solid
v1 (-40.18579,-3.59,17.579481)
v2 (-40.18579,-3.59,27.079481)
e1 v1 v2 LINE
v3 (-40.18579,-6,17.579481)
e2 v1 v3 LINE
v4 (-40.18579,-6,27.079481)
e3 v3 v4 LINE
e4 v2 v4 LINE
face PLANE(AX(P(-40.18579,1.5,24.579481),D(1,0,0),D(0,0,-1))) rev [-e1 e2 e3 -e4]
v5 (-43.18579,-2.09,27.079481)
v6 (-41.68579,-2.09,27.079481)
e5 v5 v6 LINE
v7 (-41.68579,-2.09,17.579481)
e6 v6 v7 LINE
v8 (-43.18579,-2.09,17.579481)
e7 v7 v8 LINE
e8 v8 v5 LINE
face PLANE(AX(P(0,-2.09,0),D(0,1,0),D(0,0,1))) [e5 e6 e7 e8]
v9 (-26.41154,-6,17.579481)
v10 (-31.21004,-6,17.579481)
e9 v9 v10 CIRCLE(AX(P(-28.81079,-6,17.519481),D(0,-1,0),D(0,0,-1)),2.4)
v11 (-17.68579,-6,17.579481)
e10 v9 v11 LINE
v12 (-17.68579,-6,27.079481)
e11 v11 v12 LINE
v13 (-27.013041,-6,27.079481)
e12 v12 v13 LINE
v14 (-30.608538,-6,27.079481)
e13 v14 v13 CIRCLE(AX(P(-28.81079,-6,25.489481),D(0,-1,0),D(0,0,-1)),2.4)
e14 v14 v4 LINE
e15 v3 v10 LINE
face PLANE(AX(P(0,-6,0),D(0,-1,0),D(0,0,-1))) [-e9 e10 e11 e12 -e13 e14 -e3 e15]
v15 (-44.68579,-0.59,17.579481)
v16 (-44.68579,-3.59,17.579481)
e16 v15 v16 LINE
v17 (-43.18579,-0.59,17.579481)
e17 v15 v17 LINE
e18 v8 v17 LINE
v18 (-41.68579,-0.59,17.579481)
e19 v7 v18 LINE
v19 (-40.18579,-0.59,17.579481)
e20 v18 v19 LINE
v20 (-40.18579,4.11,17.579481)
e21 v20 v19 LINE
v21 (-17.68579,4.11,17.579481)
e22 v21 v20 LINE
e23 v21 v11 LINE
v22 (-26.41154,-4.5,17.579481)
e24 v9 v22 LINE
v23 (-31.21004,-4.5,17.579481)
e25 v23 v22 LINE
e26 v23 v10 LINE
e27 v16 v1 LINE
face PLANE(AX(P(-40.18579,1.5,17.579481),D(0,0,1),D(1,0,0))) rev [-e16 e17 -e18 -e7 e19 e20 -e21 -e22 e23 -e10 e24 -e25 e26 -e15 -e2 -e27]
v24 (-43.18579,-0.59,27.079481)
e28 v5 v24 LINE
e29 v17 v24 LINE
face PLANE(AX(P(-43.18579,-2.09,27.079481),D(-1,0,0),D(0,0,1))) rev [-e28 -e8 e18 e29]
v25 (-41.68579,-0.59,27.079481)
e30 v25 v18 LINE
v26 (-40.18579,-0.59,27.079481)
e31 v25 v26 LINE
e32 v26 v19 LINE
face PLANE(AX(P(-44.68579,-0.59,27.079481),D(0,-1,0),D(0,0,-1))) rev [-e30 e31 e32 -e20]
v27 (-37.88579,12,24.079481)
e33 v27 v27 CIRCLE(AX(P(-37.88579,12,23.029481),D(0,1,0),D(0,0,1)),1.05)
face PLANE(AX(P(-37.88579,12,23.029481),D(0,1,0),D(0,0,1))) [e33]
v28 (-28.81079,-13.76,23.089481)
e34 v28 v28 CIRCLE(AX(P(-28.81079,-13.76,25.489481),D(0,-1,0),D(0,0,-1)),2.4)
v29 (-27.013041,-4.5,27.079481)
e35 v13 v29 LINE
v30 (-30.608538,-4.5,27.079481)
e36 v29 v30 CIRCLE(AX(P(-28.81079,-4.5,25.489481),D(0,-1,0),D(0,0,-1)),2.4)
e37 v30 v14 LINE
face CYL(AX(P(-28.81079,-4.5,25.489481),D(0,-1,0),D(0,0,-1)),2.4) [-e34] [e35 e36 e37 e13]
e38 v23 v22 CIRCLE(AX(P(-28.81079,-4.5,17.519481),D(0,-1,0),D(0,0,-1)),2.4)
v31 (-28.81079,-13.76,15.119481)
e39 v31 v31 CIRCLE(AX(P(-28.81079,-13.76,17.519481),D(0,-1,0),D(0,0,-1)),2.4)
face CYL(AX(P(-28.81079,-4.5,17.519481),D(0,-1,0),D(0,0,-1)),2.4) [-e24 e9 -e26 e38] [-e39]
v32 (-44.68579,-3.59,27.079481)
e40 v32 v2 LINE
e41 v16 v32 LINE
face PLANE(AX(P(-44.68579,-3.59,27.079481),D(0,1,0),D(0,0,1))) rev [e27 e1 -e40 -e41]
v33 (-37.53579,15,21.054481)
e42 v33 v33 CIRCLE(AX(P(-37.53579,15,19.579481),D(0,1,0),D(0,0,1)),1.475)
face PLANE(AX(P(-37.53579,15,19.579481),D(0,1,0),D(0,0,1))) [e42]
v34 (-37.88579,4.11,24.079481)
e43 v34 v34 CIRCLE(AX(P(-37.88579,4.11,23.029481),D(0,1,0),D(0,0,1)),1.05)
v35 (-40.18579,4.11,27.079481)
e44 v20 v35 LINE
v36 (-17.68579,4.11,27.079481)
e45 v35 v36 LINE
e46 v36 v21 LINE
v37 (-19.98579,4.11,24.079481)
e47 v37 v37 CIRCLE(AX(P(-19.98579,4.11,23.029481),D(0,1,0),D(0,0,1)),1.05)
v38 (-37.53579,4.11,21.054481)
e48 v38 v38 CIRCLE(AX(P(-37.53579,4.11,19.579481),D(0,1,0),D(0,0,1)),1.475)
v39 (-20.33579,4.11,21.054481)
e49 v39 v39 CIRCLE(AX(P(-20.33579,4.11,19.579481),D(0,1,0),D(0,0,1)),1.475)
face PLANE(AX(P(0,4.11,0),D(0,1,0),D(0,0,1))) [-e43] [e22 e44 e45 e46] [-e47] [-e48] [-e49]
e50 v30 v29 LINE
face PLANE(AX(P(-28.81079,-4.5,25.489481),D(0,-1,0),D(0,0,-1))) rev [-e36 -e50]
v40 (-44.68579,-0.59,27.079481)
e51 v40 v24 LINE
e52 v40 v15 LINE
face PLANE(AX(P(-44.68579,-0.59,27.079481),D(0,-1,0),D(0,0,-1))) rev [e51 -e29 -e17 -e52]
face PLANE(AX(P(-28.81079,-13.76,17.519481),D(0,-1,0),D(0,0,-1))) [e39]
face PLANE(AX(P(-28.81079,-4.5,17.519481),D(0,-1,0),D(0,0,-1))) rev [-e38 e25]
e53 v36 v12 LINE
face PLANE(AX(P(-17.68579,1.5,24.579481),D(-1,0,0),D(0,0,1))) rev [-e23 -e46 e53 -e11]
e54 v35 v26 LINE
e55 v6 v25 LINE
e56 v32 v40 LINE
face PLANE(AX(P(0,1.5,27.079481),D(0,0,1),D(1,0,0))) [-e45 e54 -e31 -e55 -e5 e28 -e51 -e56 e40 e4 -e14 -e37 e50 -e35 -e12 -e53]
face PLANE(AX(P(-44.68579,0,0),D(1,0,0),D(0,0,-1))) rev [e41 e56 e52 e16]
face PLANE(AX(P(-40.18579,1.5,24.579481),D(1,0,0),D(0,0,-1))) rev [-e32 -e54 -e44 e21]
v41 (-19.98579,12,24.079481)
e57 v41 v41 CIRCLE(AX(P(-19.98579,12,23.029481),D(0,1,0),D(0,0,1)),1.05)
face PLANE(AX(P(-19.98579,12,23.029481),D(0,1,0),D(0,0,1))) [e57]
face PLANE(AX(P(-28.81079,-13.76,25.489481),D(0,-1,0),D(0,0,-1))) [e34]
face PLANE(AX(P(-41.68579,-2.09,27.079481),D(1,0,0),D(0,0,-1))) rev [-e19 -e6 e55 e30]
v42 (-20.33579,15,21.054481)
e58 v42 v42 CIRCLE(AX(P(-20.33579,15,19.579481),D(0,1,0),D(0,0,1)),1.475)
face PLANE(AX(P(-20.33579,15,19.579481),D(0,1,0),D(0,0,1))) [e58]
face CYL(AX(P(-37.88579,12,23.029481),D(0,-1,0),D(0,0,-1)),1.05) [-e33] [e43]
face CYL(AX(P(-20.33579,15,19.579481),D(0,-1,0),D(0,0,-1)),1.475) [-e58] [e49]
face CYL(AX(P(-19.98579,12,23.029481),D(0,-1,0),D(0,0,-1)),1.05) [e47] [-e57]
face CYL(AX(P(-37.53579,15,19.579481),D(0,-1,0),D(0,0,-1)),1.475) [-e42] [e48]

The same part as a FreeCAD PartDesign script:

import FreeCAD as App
import Part
import Sketcher
from FreeCAD import Vector
Q = App.Units.Quantity

doc = App.newDocument("Part")
body = doc.addObject("PartDesign::Body", "Body")

# Sketch on XZ plane
sketch1 = doc.addObject("Sketcher::SketchObject", "Sketch")
body.addObject(sketch1)
sketch1.AttachmentSupport = (doc.XZ_Plane, [""])
sketch1.MapMode = "FlatFace"
sketch1.addGeometry([
    Part.LineSegment(Vector(-40, 18, 0), Vector(-40, 25, 0)),
    Part.LineSegment(Vector(-40, 25, 0), Vector(-18, 25, 0)),
    Part.LineSegment(Vector(-18, 25, 0), Vector(-18, 18, 0)),
    Part.LineSegment(Vector(-18, 18, 0), Vector(-40, 18, 0)),
], False)
sketch1.addConstraint([
    Sketcher.Constraint("Coincident", 0, 2, 1, 1),
    Sketcher.Constraint("Coincident", 1, 2, 2, 1),
    Sketcher.Constraint("Coincident", 2, 2, 3, 1),
    Sketcher.Constraint("Coincident", 3, 2, 0, 1),
    Sketcher.Constraint("Vertical", 0),
    Sketcher.Constraint("Horizontal", 1),
    Sketcher.Constraint("Vertical", 2),
    Sketcher.Constraint("Horizontal", 3),
    Sketcher.Constraint("DistanceY", 0, 1, 0, 2, Q("7 mm")),
    Sketcher.Constraint("DistanceX", 1, 1, 1, 2, Q("22.5 mm")),
    Sketcher.Constraint("DistanceX", 0, 2, -1, 1, Q("40.18579 mm")),
    Sketcher.Constraint("DistanceY", -1, 1, 0, 2, Q("24.579481 mm")),
])
pad1 = doc.addObject("PartDesign::Pad", "Pad")
body.addObject(pad1)
pad1.Profile = sketch1
pad1.Length = 1.5
pad1.Reversed = True

# Sketch on XZ plane
sketch2 = doc.addObject("Sketcher::SketchObject", "Sketch001")
body.addObject(sketch2)
sketch2.AttachmentSupport = (doc.XZ_Plane, [""])
sketch2.MapMode = "FlatFace"
sketch2.AttachmentOffset = App.Placement(Vector(0, 0, -1.5), App.Rotation())
sketch2.addGeometry([
    Part.Circle(Vector(-37.5, 19.6, 0), Vector(0, 0, 1), 1.5),
    Part.Circle(Vector(-20.3, 19.6, 0), Vector(0, 0, 1), 1.5),
], False)
sketch2.addConstraint([
    Sketcher.Constraint("Equal", 0, 1),
    Sketcher.Constraint("Horizontal", 0, 3, 1, 3),
    Sketcher.Constraint("Diameter", 0, Q("2.95 mm")),
    Sketcher.Constraint("DistanceX", 0, 3, 1, 3, Q("17.2 mm")),
    Sketcher.Constraint("DistanceX", 0, 3, -1, 1, Q("37.53579 mm")),
    Sketcher.Constraint("DistanceY", -1, 1, 0, 3, Q("19.579481 mm")),
])
pad2 = doc.addObject("PartDesign::Pad", "Pad001")
body.addObject(pad2)
pad2.Profile = sketch2
pad2.Length = 13.5
pad2.Reversed = True

# Sketch on XZ plane
sketch3 = doc.addObject("Sketcher::SketchObject", "Sketch002")
body.addObject(sketch3)
sketch3.AttachmentSupport = (doc.XZ_Plane, [""])
sketch3.MapMode = "FlatFace"
sketch3.AttachmentOffset = App.Placement(Vector(0, 0, -1.5), App.Rotation())
sketch3.addGeometry([
    Part.Circle(Vector(-37.9, 23, 0), Vector(0, 0, 1), 1.1),
    Part.Circle(Vector(-20, 23, 0), Vector(0, 0, 1), 1.1),
], False)
sketch3.addConstraint([
    Sketcher.Constraint("Equal", 0, 1),
    Sketcher.Constraint("Horizontal", 0, 3, 1, 3),
    Sketcher.Constraint("Diameter", 0, Q("2.1 mm")),
    Sketcher.Constraint("DistanceX", 0, 3, 1, 3, Q("17.9 mm")),
    Sketcher.Constraint("DistanceX", 0, 3, -1, 1, Q("37.88579 mm")),
    Sketcher.Constraint("DistanceY", -1, 1, 0, 3, Q("23.029481 mm")),
])
pad3 = doc.addObject("PartDesign::Pad", "Pad002")
body.addObject(pad3)
pad3.Profile = sketch3
pad3.Length = 10.5
pad3.Reversed = True

# Sketch on XZ plane
sketch4 = doc.addObject("Sketcher::SketchObject", "Sketch003")
body.addObject(sketch4)
sketch4.AttachmentSupport = (doc.XZ_Plane, [""])
sketch4.MapMode = "FlatFace"
sketch4.addGeometry([
    Part.LineSegment(Vector(-18, 27, 0), Vector(-40, 27, 0)),
    Part.LineSegment(Vector(-40, 27, 0), Vector(-40, 18, 0)),
    Part.LineSegment(Vector(-40, 18, 0), Vector(-18, 18, 0)),
    Part.LineSegment(Vector(-18, 18, 0), Vector(-18, 27, 0)),
], False)
sketch4.addConstraint([
    Sketcher.Constraint("Coincident", 0, 2, 1, 1),
    Sketcher.Constraint("Coincident", 1, 2, 2, 1),
    Sketcher.Constraint("Coincident", 2, 2, 3, 1),
    Sketcher.Constraint("Coincident", 3, 2, 0, 1),
    Sketcher.Constraint("Horizontal", 0),
    Sketcher.Constraint("Vertical", 1),
    Sketcher.Constraint("Horizontal", 2),
    Sketcher.Constraint("Vertical", 3),
    Sketcher.Constraint("DistanceX", 0, 2, 0, 1, Q("22.5 mm")),
    Sketcher.Constraint("DistanceY", 1, 2, 1, 1, Q("9.5 mm")),
    Sketcher.Constraint("DistanceX", 0, 2, -1, 1, Q("40.18579 mm")),
    Sketcher.Constraint("DistanceY", -1, 1, 0, 2, Q("27.079481 mm")),
])
pad4 = doc.addObject("PartDesign::Pad", "Pad003")
body.addObject(pad4)
pad4.Profile = sketch4
pad4.Type = "TwoLengths"
pad4.Length = 6
pad4.Length2 = 1.5

# Sketch on XZ plane
sketch5 = doc.addObject("Sketcher::SketchObject", "Sketch004")
body.addObject(sketch5)
sketch5.AttachmentSupport = (doc.XZ_Plane, [""])
sketch5.MapMode = "FlatFace"
sketch5.AttachmentOffset = App.Placement(Vector(0, 0, -1.5), App.Rotation())
sketch5.addGeometry([
    Part.LineSegment(Vector(-40, 18, 0), Vector(-40, 27, 0)),
    Part.LineSegment(Vector(-40, 27, 0), Vector(-18, 27, 0)),
    Part.LineSegment(Vector(-18, 27, 0), Vector(-18, 18, 0)),
    Part.LineSegment(Vector(-18, 18, 0), Vector(-40, 18, 0)),
], False)
sketch5.addConstraint([
    Sketcher.Constraint("Coincident", 0, 2, 1, 1),
    Sketcher.Constraint("Coincident", 1, 2, 2, 1),
    Sketcher.Constraint("Coincident", 2, 2, 3, 1),
    Sketcher.Constraint("Coincident", 3, 2, 0, 1),
    Sketcher.Constraint("Vertical", 0),
    Sketcher.Constraint("Horizontal", 1),
    Sketcher.Constraint("Vertical", 2),
    Sketcher.Constraint("Horizontal", 3),
    Sketcher.Constraint("DistanceX", 1, 1, 1, 2, Q("22.5 mm")),
    Sketcher.Constraint("DistanceY", 0, 1, 0, 2, Q("9.5 mm")),
    Sketcher.Constraint("DistanceX", 0, 2, -1, 1, Q("40.18579 mm")),
    Sketcher.Constraint("DistanceY", -1, 1, 0, 2, Q("27.079481 mm")),
])
pad5 = doc.addObject("PartDesign::Pad", "Pad004")
body.addObject(pad5)
pad5.Profile = sketch5
pad5.Length = 2.61
pad5.Reversed = True

# Sketch on XZ plane
sketch6 = doc.addObject("Sketcher::SketchObject", "Sketch005")
body.addObject(sketch6)
sketch6.AttachmentSupport = (doc.XZ_Plane, [""])
sketch6.MapMode = "FlatFace"
sketch6.AttachmentOffset = App.Placement(Vector(0, 0, 6), App.Rotation())
sketch6.addGeometry([
    Part.Circle(Vector(-28.8, 25.5, 0), Vector(0, 0, 1), 2.4),
    Part.Circle(Vector(-28.8, 17.5, 0), Vector(0, 0, 1), 2.4),
], False)
sketch6.addConstraint([
    Sketcher.Constraint("Equal", 0, 1),
    Sketcher.Constraint("Vertical", 0, 3, 1, 3),
    Sketcher.Constraint("Diameter", 0, Q("4.8 mm")),
    Sketcher.Constraint("DistanceY", 1, 3, 0, 3, Q("7.97 mm")),
    Sketcher.Constraint("DistanceX", 0, 3, -1, 1, Q("28.81079 mm")),
    Sketcher.Constraint("DistanceY", -1, 1, 0, 3, Q("25.489481 mm")),
])
pad6 = doc.addObject("PartDesign::Pad", "Pad005")
body.addObject(pad6)
pad6.Profile = sketch6
pad6.Type = "TwoLengths"
pad6.Length = 7.76
pad6.Length2 = 1.5

# Sketch on YZ plane
sketch7 = doc.addObject("Sketcher::SketchObject", "Sketch006")
body.addObject(sketch7)
sketch7.AttachmentSupport = (doc.YZ_Plane, [""])
sketch7.MapMode = "FlatFace"
sketch7.AttachmentOffset = App.Placement(Vector(0, 0, -40.18579), App.Rotation())
sketch7.addGeometry([
    Part.LineSegment(Vector(-0.6, 17.6, 0), Vector(-3.6, 17.6, 0)),
    Part.LineSegment(Vector(-3.6, 17.6, 0), Vector(-3.6, 27.1, 0)),
    Part.LineSegment(Vector(-3.6, 27.1, 0), Vector(-0.6, 27.1, 0)),
    Part.LineSegment(Vector(-0.6, 27.1, 0), Vector(-0.6, 17.6, 0)),
], False)
sketch7.addConstraint([
    Sketcher.Constraint("Coincident", 0, 2, 1, 1),
    Sketcher.Constraint("Coincident", 1, 2, 2, 1),
    Sketcher.Constraint("Coincident", 2, 2, 3, 1),
    Sketcher.Constraint("Coincident", 3, 2, 0, 1),
    Sketcher.Constraint("Horizontal", 0),
    Sketcher.Constraint("Vertical", 1),
    Sketcher.Constraint("Horizontal", 2),
    Sketcher.Constraint("Vertical", 3),
    Sketcher.Constraint("DistanceX", 0, 2, 0, 1, Q("3 mm")),
    Sketcher.Constraint("DistanceY", 1, 1, 1, 2, Q("9.5 mm")),
    Sketcher.Constraint("DistanceX", 0, 2, -1, 1, Q("3.59 mm")),
    Sketcher.Constraint("DistanceY", -1, 1, 0, 2, Q("17.579481 mm")),
])
pad7 = doc.addObject("PartDesign::Pad", "Pad006")
body.addObject(pad7)
pad7.Profile = sketch7
pad7.Length = 4.5
pad7.Reversed = True

# Sketch on XZ plane
sketch8 = doc.addObject("Sketcher::SketchObject", "Sketch007")
body.addObject(sketch8)
sketch8.AttachmentSupport = (doc.XZ_Plane, [""])
sketch8.MapMode = "FlatFace"
sketch8.AttachmentOffset = App.Placement(Vector(0, 0, 0.59), App.Rotation())
sketch8.addGeometry([
    Part.LineSegment(Vector(-43.2, 17.6, 0), Vector(-43.2, 27.1, 0)),
    Part.LineSegment(Vector(-43.2, 27.1, 0), Vector(-41.7, 27.1, 0)),
    Part.LineSegment(Vector(-41.7, 27.1, 0), Vector(-41.7, 17.6, 0)),
    Part.LineSegment(Vector(-41.7, 17.6, 0), Vector(-43.2, 17.6, 0)),
], False)
sketch8.addConstraint([
    Sketcher.Constraint("Coincident", 0, 2, 1, 1),
    Sketcher.Constraint("Coincident", 1, 2, 2, 1),
    Sketcher.Constraint("Coincident", 2, 2, 3, 1),
    Sketcher.Constraint("Coincident", 3, 2, 0, 1),
    Sketcher.Constraint("Vertical", 0),
    Sketcher.Constraint("Horizontal", 1),
    Sketcher.Constraint("Vertical", 2),
    Sketcher.Constraint("Horizontal", 3),
    Sketcher.Constraint("DistanceX", 1, 1, 1, 2, Q("1.5 mm")),
    Sketcher.Constraint("DistanceY", 0, 1, 0, 2, Q("9.5 mm")),
    Sketcher.Constraint("DistanceX", 0, 2, -1, 1, Q("43.18579 mm")),
    Sketcher.Constraint("DistanceY", -1, 1, 0, 2, Q("27.079481 mm")),
])
pocket1 = doc.addObject("PartDesign::Pocket", "Pocket")
body.addObject(pocket1)
pocket1.Profile = sketch8
pocket1.Length = 1.5
pocket1.Reversed = True

doc.recompute()
